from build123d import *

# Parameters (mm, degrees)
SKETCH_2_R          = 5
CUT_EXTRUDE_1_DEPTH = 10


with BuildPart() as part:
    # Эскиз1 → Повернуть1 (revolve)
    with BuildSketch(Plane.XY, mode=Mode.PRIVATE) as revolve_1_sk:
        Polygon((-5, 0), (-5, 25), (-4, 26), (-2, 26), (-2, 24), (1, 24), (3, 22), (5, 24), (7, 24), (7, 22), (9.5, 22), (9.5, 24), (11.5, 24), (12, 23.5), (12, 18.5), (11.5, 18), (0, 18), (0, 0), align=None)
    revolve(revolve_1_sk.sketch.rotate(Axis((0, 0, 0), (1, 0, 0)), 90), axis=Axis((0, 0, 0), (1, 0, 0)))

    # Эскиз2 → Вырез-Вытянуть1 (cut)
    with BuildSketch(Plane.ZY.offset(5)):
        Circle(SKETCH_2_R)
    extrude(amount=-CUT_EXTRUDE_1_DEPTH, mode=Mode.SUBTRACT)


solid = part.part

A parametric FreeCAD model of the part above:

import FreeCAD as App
import Part
import Sketcher

V = App.Vector


def add_polygon(sketch, points):
    """Adds a closed chain of lines whose ends are joined by coincident constraints."""
    first, n = sketch.GeometryCount, len(points)
    for a, b in zip(points, points[1:] + points[:1]):
        sketch.addGeometry(Part.LineSegment(App.Vector(*a, 0), App.Vector(*b, 0)), False)
    for i in range(n):
        sketch.addConstraint(Sketcher.Constraint("Coincident", first + i, 2, first + (i + 1) % n, 1))

doc = App.newDocument("Part")
params = doc.addObject("Spreadsheet::Sheet", "Params")
for row, (alias, value) in enumerate([
    ("sketch1_width", "5 mm"),
    ("sketch1_width2", "2 mm"),
    ("sketch1_width3", "3 mm"),
    ("sketch1_height", "25 mm"),
    ("sketch1_height2", "18 mm"),
    ("revolution_angle", "360 deg"),
    ("sketch2_diameter", "10 mm"),
    ("pocket1_length", "10 mm"),
], start=1):
    params.set(f"A{row}", alias)
    params.set(f"B{row}", "=" + value)
    params.setAlias(f"B{row}", alias)

body = doc.addObject("PartDesign::Body", "Body")

sketch1 = body.newObject("Sketcher::SketchObject", "Sketch")
sketch1.AttachmentSupport = (doc.getObject("XY_Plane"), [""])
sketch1.MapMode = "FlatFace"
add_polygon(sketch1, [(-5, 25), (-5, 0), (0, 0), (0, 18), (11.5, 18), (12, 18.5), (12, 23.5), (11.5, 24), (9.5, 24), (9.5, 22), (7, 22), (7, 24), (5, 24), (3, 22), (1, 24), (-2, 24), (-2, 26), (-4, 26)])
sketch1.addConstraint([
    Sketcher.Constraint("Vertical", 0),
    Sketcher.Constraint("Horizontal", 1),
    Sketcher.Constraint("Vertical", 2),
    Sketcher.Constraint("Horizontal", 3),
    Sketcher.Constraint("Vertical", 5),
    Sketcher.Constraint("Horizontal", 7),
    Sketcher.Constraint("Vertical", 8),
    Sketcher.Constraint("Horizontal", 9),
    Sketcher.Constraint("Vertical", 10),
    Sketcher.Constraint("Horizontal", 11),
    Sketcher.Constraint("Horizontal", 14),
    Sketcher.Constraint("Vertical", 15),
    Sketcher.Constraint("Horizontal", 16),
    Sketcher.Constraint("Coincident", 1, 2, -1, 1),
    Sketcher.Constraint("Perpendicular", 4, 6),
    Sketcher.Constraint("Perpendicular", 6, 12),
    Sketcher.Constraint("Perpendicular", 12, 13),
    Sketcher.Constraint("Perpendicular", 13, 17),
    Sketcher.Constraint("Horizontal", 7, 2, 10, 2),
    Sketcher.Constraint("Horizontal", 9, 2, 12, 2),
    Sketcher.Constraint("Horizontal", 11, 2, 13, 2),
    Sketcher.Constraint("Vertical", 3, 2, 6, 2),
    Sketcher.Constraint("Equal", 7, 11),
    Sketcher.Constraint("Equal", 11, 16),
    Sketcher.Constraint("Equal", 1, 5),
    Sketcher.Constraint("Equal", 16, 8),
    Sketcher.Constraint("Equal", 10, 15),
    Sketcher.Constraint("Equal", 4, 6),
    Sketcher.Constraint("DistanceX", 1, 1, 1, 2, 5.0),
    Sketcher.Constraint("DistanceX", 7, 2, 7, 1, 2.0),
    Sketcher.Constraint("DistanceX", 14, 2, 14, 1, 3.0),
    Sketcher.Constraint("DistanceY", 0, 2, 0, 1, 25.0),
    Sketcher.Constraint("DistanceY", 2, 1, 2, 2, 18.0),
    Sketcher.Constraint("DistanceX", 3, 1, 3, 2, 11.5),
    Sketcher.Constraint("DistanceX", 9, 2, 9, 1, 2.5),
])
sketch1.setExpression("Constraints[46]", "Params.sketch1_width")
sketch1.setExpression("Constraints[47]", "Params.sketch1_width2")
sketch1.setExpression("Constraints[48]", "Params.sketch1_width3")
sketch1.setExpression("Constraints[49]", "Params.sketch1_height")
sketch1.setExpression("Constraints[50]", "Params.sketch1_height2")
revolution = body.newObject("PartDesign::Revolution", "Revolution")
revolution.Profile = sketch1
revolution.ReferenceAxis = (sketch1, ["H_Axis"])
revolution.setExpression("Angle", "Params.revolution_angle")

sketch2 = body.newObject("Sketcher::SketchObject", "Sketch001")
sketch2.AttachmentSupport = (doc.getObject("YZ_Plane"), [""])
sketch2.MapMode = "FlatFace"
sketch2.AttachmentOffset = App.Placement(V(0, 0, -5), App.Rotation())
sketch2.addGeometry(Part.Circle(V(0, 0, 0), V(0, 0, 1), 5), False)
sketch2.addConstraint([
    Sketcher.Constraint("Coincident", 0, 3, -1, 1),
    Sketcher.Constraint("Diameter", 0, 10.0),
])
sketch2.setExpression("Constraints[1]", "Params.sketch2_diameter")
pocket1 = body.newObject("PartDesign::Pocket", "Pocket")
pocket1.Profile = sketch2
pocket1.setExpression("Length", "Params.pocket1_length")
pocket1.Reversed = True

doc.recompute()
